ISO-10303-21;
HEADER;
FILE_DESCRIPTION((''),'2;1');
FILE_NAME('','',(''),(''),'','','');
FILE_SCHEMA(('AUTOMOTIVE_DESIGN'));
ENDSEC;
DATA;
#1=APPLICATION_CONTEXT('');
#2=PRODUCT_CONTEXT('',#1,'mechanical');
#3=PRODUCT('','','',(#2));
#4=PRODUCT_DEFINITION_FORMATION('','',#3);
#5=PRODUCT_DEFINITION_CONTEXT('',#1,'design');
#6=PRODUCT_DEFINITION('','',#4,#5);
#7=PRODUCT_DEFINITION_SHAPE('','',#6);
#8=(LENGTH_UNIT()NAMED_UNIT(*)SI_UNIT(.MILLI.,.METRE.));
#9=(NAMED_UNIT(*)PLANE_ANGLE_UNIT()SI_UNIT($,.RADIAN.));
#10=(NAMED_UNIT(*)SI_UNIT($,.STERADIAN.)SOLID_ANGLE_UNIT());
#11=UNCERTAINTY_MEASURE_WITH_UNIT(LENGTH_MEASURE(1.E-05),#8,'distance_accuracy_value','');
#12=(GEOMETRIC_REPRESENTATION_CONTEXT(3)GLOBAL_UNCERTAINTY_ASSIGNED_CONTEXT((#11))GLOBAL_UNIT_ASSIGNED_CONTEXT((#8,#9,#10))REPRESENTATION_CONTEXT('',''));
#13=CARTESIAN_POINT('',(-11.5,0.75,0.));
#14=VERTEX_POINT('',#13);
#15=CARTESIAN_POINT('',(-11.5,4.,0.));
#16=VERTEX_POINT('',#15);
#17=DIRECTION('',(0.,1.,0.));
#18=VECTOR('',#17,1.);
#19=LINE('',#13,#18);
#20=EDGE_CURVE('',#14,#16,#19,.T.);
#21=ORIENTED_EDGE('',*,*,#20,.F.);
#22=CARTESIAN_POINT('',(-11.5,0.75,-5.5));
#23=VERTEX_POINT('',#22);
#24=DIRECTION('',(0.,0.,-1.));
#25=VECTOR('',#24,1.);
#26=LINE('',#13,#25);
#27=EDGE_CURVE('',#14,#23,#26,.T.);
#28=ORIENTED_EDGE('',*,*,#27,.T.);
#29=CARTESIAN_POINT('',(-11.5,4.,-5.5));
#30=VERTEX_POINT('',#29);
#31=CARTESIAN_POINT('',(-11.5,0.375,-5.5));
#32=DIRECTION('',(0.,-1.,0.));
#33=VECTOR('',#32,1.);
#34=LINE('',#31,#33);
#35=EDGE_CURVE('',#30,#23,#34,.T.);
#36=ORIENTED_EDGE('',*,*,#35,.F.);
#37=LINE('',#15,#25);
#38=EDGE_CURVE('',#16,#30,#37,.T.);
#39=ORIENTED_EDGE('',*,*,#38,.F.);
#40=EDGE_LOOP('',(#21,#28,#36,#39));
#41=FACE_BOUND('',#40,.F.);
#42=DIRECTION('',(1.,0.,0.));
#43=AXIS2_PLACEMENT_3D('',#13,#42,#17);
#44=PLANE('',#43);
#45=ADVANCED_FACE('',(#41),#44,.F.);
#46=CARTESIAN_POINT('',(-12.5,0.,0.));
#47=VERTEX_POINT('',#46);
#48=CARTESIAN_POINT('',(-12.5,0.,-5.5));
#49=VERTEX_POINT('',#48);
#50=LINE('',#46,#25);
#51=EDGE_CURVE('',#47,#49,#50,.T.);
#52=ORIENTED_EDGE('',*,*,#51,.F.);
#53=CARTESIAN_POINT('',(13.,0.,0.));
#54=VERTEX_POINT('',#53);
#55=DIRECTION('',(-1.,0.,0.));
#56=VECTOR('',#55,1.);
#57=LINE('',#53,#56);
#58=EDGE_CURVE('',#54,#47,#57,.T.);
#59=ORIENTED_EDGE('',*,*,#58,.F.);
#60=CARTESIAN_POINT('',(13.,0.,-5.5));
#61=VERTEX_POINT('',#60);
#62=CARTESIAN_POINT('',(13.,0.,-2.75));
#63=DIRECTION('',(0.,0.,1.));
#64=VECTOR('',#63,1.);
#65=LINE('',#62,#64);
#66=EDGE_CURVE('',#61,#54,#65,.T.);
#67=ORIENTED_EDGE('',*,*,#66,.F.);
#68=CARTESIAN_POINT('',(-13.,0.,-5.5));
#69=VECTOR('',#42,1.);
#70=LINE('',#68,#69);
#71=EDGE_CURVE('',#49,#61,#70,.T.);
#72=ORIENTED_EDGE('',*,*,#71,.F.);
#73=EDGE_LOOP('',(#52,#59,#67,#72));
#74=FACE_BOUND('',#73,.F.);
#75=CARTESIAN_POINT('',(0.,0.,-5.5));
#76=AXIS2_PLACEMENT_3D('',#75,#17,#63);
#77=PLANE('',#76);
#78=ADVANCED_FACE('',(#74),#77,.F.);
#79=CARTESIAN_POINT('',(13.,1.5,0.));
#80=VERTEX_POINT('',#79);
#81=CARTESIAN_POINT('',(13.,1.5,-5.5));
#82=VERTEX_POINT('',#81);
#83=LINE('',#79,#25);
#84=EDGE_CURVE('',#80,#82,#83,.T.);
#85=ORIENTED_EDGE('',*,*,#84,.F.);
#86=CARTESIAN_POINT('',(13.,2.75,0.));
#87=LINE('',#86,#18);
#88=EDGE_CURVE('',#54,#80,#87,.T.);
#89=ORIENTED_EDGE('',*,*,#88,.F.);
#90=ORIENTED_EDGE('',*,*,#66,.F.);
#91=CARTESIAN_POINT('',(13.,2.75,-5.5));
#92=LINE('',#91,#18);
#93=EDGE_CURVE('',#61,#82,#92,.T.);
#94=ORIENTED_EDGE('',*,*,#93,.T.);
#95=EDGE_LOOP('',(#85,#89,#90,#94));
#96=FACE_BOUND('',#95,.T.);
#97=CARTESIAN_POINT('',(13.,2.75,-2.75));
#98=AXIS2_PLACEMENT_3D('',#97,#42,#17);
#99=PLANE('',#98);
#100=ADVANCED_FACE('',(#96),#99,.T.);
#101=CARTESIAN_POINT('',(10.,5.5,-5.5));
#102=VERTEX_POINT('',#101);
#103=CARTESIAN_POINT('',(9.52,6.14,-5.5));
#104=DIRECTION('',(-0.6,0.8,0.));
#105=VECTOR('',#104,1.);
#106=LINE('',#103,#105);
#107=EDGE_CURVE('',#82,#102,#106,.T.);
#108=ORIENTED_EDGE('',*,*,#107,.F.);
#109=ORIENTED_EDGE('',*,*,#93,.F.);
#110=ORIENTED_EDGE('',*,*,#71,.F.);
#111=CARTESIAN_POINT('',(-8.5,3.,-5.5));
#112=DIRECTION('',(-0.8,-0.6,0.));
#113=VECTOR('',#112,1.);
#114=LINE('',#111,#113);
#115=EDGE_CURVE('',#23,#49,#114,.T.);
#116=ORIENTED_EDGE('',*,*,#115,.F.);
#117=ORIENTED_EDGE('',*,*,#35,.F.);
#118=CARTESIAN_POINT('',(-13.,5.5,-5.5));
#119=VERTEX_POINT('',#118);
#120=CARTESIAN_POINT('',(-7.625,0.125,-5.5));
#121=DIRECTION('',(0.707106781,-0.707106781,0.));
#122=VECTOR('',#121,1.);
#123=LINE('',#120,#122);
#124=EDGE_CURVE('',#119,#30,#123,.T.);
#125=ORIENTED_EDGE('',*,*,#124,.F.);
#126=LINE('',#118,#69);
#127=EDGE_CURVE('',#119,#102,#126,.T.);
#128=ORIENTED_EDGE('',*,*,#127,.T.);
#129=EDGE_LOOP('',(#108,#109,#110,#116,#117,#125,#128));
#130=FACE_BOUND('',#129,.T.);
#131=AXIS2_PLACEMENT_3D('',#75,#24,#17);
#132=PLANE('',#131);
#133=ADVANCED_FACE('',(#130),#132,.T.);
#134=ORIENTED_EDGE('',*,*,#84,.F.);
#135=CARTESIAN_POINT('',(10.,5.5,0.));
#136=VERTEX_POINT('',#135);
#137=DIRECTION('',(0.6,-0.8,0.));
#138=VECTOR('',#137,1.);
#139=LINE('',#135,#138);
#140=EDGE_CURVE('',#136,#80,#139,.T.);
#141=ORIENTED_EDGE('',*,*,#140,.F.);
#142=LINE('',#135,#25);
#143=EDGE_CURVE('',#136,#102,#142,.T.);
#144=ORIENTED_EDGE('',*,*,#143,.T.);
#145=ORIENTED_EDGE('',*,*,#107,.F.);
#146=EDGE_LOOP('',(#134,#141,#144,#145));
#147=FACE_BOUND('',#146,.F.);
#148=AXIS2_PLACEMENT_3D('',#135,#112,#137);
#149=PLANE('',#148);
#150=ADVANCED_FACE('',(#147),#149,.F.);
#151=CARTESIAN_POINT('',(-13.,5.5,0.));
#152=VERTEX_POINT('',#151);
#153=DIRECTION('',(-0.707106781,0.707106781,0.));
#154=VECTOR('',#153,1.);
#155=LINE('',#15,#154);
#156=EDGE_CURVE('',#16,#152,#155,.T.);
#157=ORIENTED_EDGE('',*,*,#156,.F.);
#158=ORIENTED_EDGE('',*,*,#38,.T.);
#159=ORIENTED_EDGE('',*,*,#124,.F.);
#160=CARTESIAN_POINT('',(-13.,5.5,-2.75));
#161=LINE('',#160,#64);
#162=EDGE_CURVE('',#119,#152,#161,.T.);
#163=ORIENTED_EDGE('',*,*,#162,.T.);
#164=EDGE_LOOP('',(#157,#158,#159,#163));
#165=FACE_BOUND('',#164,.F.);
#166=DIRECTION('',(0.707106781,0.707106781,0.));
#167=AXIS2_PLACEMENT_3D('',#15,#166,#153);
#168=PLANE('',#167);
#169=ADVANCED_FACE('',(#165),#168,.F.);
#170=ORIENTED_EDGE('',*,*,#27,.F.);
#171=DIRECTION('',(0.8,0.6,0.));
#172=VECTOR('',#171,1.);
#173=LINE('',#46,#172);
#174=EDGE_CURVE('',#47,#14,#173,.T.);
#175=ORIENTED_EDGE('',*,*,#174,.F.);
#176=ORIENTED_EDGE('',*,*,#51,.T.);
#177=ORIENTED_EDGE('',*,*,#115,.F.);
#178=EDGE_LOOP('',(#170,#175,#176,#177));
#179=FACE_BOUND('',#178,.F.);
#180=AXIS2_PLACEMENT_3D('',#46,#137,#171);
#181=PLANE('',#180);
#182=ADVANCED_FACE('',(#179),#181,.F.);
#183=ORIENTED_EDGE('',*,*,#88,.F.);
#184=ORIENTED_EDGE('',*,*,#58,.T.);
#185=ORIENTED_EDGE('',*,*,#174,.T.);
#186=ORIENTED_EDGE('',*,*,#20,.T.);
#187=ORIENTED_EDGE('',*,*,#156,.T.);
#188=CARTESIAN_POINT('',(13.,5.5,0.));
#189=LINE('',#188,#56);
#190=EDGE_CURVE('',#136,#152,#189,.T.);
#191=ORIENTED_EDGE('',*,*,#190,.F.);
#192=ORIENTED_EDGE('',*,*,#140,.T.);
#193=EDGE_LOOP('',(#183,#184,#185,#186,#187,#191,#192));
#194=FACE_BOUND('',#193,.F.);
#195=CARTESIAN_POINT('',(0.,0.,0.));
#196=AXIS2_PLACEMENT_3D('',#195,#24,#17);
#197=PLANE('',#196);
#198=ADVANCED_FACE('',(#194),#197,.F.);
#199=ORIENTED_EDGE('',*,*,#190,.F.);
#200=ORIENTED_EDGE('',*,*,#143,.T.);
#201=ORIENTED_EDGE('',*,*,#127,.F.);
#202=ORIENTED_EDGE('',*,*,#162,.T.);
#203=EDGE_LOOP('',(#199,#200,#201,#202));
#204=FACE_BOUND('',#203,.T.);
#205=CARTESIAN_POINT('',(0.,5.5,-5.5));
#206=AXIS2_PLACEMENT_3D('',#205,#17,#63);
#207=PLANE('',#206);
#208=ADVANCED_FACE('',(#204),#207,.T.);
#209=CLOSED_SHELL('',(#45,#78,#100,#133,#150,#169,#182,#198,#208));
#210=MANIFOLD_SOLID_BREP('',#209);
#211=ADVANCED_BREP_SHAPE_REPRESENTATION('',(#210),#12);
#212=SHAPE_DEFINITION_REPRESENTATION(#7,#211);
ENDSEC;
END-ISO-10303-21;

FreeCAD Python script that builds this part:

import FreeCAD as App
import Part
import Sketcher
Q = App.Units.Quantity


def add_polygon(sketch, points):
    """Adds a closed chain of lines whose ends are joined by coincident constraints."""
    first, n = sketch.GeometryCount, len(points)
    for a, b in zip(points, points[1:] + points[:1]):
        sketch.addGeometry(Part.LineSegment(App.Vector(*a, 0), App.Vector(*b, 0)), False)
    for i in range(n):
        sketch.addConstraint(Sketcher.Constraint("Coincident", first + i, 2, first + (i + 1) % n, 1))

doc = App.newDocument("Part")
params = doc.addObject("Spreadsheet::Sheet", "Params")
for row, (alias, value) in enumerate([
    ("sketch1_width", "5.5 mm"),
    ("pad1_length", "26 mm"),
    ("sketch2_width", "3 mm"),
    ("sketch2_height", "4 mm"),
    ("sketch2_width2", "0.5 mm"),
    ("sketch2_height2", "5.5 mm"),
], start=1):
    params.set(f"A{row}", alias)
    params.set(f"B{row}", "=" + value)
    params.setAlias(f"B{row}", alias)

body = doc.addObject("PartDesign::Body", "Body")

# Sketch on YZ plane
sketch1 = body.newObject("Sketcher::SketchObject", "Sketch")
sketch1.AttachmentSupport = (doc.getObject("YZ_Plane"), [""])
sketch1.MapMode = "FlatFace"
add_polygon(sketch1, [(0, 0), (0, -5.5), (5.5, -5.5), (5.5, 0)])  # lines 0-3
sketch1.addConstraint([
    Sketcher.Constraint("Vertical", 0),
    Sketcher.Constraint("Horizontal", 1),
    Sketcher.Constraint("Vertical", 2),
    Sketcher.Constraint("Horizontal", 3),
    Sketcher.Constraint("Coincident", 3, 2, -1, 1),
    Sketcher.Constraint("Equal", 3, 0),
    Sketcher.Constraint("DistanceX", 1, 1, 1, 2, Q("5.5 mm")),
])
sketch1.setExpression("Constraints[10]", "Params.sketch1_width")
pad1 = body.newObject("PartDesign::Pad", "Pad")
pad1.Profile = sketch1
pad1.setExpression("Length", "Params.pad1_length")
pad1.Midplane = True

# Sketch on XY plane
sketch2 = body.newObject("Sketcher::SketchObject", "Sketch001")
sketch2.AttachmentSupport = (doc.getObject("XY_Plane"), [""])
sketch2.MapMode = "FlatFace"
add_polygon(sketch2, [(-11.5, 4), (-13, 5.5), (-13, 0), (-12.5, 0), (-11.5, 0.75)])  # lines 0-4
add_polygon(sketch2, [(13, 5.5), (10, 5.5), (13, 1.5)])  # lines 5-7
sketch2.addConstraint([
    Sketcher.Constraint("Vertical", 1),
    Sketcher.Constraint("Horizontal", 2),
    Sketcher.Constraint("Vertical", 4),
    Sketcher.Constraint("Horizontal", 5),
    Sketcher.Constraint("Vertical", 7),
    Sketcher.Constraint("Symmetric", 0, 2, 7, 2, -2),
    Sketcher.Constraint("PointOnObject", 1, 2, -1),
    Sketcher.Constraint("Perpendicular", 3, 6),
    Sketcher.Constraint("DistanceX", 5, 2, 5, 1, Q("3 mm")),
    Sketcher.Constraint("DistanceY", 7, 1, 7, 2, Q("4 mm")),
    Sketcher.Constraint("Angle", 0, Q("135 deg")),
    Sketcher.Constraint("DistanceX", 2, 1, 2, 2, Q("0.5 mm")),
    Sketcher.Constraint("DistanceY", 1, 2, 1, 1, Q("5.5 mm")),
    Sketcher.Constraint("DistanceX", 0, 2, -1, 1, Q("13 mm")),
    Sketcher.Constraint("DistanceY", -1, 1, 4, 2, Q("4 mm")),
])
sketch2.setExpression("Constraints[16]", "Params.sketch2_width")
sketch2.setExpression("Constraints[17]", "Params.sketch2_height")
sketch2.setExpression("Constraints[19]", "Params.sketch2_width2")
sketch2.setExpression("Constraints[20]", "Params.sketch2_height2")
pocket1 = body.newObject("PartDesign::Pocket", "Pocket")
pocket1.Profile = sketch2
pocket1.Type = "ThroughAll"

doc.recompute()
